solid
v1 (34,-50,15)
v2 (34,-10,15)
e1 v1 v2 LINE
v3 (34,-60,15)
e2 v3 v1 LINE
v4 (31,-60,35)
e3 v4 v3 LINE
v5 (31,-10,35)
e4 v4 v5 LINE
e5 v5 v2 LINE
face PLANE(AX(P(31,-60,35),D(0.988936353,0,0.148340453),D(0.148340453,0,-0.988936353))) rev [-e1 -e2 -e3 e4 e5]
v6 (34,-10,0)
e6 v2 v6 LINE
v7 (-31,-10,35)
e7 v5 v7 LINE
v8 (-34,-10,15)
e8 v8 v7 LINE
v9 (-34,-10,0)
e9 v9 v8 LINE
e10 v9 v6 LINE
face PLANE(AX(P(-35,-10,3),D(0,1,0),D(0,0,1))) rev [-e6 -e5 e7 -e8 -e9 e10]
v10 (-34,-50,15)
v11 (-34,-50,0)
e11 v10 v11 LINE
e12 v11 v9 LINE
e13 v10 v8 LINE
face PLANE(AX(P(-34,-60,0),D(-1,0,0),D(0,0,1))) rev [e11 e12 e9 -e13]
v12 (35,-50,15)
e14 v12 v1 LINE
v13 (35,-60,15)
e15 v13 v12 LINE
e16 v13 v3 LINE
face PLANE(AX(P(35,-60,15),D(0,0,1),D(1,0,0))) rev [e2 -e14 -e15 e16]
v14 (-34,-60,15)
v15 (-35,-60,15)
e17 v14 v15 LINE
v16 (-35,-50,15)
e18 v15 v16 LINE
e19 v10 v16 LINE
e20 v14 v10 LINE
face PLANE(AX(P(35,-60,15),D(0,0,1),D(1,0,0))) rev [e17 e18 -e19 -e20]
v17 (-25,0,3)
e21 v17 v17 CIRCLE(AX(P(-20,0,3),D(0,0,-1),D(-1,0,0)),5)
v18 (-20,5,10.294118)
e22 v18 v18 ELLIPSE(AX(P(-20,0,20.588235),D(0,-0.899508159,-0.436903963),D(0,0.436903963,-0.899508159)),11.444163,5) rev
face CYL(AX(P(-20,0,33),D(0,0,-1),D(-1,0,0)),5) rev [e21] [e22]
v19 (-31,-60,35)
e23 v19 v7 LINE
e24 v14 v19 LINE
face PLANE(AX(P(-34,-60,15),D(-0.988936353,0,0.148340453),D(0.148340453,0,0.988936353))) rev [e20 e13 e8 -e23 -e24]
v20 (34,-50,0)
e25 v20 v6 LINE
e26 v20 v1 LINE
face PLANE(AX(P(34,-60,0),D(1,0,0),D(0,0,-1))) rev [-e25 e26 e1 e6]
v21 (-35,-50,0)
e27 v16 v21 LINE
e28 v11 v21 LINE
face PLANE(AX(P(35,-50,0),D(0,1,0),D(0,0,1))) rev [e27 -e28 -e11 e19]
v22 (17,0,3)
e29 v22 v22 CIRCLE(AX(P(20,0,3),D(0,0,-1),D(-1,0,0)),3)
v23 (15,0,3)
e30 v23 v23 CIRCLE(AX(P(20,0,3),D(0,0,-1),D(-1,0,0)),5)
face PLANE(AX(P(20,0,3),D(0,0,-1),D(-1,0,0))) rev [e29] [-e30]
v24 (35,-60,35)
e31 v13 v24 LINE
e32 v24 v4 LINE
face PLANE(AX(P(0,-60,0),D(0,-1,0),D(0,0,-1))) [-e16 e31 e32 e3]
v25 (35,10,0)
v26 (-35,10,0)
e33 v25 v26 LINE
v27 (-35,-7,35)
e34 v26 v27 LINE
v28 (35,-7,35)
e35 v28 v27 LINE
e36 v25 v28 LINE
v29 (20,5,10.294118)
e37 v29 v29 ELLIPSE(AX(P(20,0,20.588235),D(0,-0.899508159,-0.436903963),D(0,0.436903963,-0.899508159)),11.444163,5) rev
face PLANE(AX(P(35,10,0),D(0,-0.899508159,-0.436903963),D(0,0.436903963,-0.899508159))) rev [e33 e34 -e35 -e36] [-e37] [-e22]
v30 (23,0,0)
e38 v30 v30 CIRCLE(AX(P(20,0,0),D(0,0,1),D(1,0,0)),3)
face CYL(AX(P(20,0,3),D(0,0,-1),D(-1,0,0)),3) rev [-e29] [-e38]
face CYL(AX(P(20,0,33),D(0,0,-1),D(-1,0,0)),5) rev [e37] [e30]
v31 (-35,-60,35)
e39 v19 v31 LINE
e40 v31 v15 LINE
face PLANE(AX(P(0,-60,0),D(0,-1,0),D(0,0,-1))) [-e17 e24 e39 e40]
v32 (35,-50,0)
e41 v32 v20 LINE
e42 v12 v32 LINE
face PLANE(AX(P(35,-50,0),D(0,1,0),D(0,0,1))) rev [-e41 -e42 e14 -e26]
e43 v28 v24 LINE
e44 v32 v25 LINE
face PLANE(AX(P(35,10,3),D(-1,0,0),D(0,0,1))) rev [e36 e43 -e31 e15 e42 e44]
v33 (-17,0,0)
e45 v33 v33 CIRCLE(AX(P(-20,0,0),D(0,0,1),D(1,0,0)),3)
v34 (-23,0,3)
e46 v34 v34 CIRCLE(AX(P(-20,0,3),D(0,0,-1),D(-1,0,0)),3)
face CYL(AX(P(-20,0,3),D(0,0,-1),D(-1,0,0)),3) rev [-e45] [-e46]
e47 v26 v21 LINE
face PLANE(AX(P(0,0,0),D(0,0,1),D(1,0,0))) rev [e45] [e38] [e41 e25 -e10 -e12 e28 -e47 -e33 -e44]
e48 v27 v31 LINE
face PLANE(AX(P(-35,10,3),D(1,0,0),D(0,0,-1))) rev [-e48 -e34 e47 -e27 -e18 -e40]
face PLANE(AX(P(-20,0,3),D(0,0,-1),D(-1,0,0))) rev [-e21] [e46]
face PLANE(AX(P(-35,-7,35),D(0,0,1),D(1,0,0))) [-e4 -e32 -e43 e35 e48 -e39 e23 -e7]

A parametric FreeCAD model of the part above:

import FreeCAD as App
import Part
import Sketcher

V = App.Vector
Q = App.Units.Quantity

doc = App.newDocument("Part")
body = doc.addObject("PartDesign::Body", "Body")

# Sketch on XY plane
sketch1 = body.newObject("Sketcher::SketchObject", "Sketch")
sketch1.AttachmentSupport = (doc.getObject("XY_Plane"), [""])
sketch1.MapMode = "FlatFace"
sketch1.addGeometry([
    Part.LineSegment(V(-35, 10, 0), V(-35, -10, 0)),  # 0
    Part.LineSegment(V(-35, -10, 0), V(35, -10, 0)),  # 1
    Part.LineSegment(V(35, -10, 0), V(35, 10, 0)),  # 2
    Part.LineSegment(V(35, 10, 0), V(-35, 10, 0)),  # 3
    Part.Circle(V(-20, 0, 0), V(0, 0, 1), 3),  # 4
    Part.Circle(V(20, 0, 0), V(0, 0, 1), 3),  # 5
], False)
sketch1.addConstraint([
    Sketcher.Constraint("Coincident", 0, 2, 1, 1),
    Sketcher.Constraint("Coincident", 1, 2, 2, 1),
    Sketcher.Constraint("Coincident", 2, 2, 3, 1),
    Sketcher.Constraint("Coincident", 3, 2, 0, 1),
    Sketcher.Constraint("Vertical", 0),
    Sketcher.Constraint("Horizontal", 1),
    Sketcher.Constraint("Vertical", 2),
    Sketcher.Constraint("Horizontal", 3),
    Sketcher.Constraint("Equal", 4, 5),
    Sketcher.Constraint("Symmetric", 4, 3, 5, 3, -1, 1),
    Sketcher.Constraint("Symmetric", 0, 2, 2, 2, -1, 1),
    Sketcher.Constraint("PointOnObject", 4, 3, -1),
    Sketcher.Constraint("Diameter", 4, Q("6 mm")),
    Sketcher.Constraint("DistanceX", 1, 1, 1, 2, Q("70 mm")),
    Sketcher.Constraint("DistanceY", 0, 2, 0, 1, Q("20 mm")),
    Sketcher.Constraint("DistanceX", 4, 3, -1, 1, Q("20 mm")),
])
pad1 = body.newObject("PartDesign::Pad", "Pad")
pad1.Profile = sketch1
pad1.Length = 3

# Sketch on XZ plane
sketch2 = body.newObject("Sketcher::SketchObject", "Sketch001")
sketch2.AttachmentSupport = (doc.getObject("XZ_Plane"), [""])
sketch2.MapMode = "FlatFace"
sketch2.AttachmentOffset = App.Placement(V(0, 0, 10), App.Rotation())
sketch2.addGeometry([
    Part.LineSegment(V(-35, 35, 0), V(-35, 0, 0)),
    Part.LineSegment(V(-35, 0, 0), V(35, 0, 0)),
    Part.LineSegment(V(35, 0, 0), V(35, 35, 0)),
    Part.LineSegment(V(35, 35, 0), V(-35, 35, 0)),
], False)
sketch2.addConstraint([
    Sketcher.Constraint("Coincident", 0, 2, 1, 1),
    Sketcher.Constraint("Coincident", 1, 2, 2, 1),
    Sketcher.Constraint("Coincident", 2, 2, 3, 1),
    Sketcher.Constraint("Coincident", 3, 2, 0, 1),
    Sketcher.Constraint("Vertical", 0),
    Sketcher.Constraint("Horizontal", 1),
    Sketcher.Constraint("Vertical", 2),
    Sketcher.Constraint("Horizontal", 3),
    Sketcher.Constraint("Symmetric", 0, 2, 1, 2, -1, 1),
    Sketcher.Constraint("DistanceX", 1, 1, 1, 2, Q("70 mm")),
    Sketcher.Constraint("DistanceY", 0, 2, 0, 1, Q("35 mm")),
])
pad2 = body.newObject("PartDesign::Pad", "Pad001")
pad2.Profile = sketch2
pad2.Length = 3
pad2.Reversed = True

# Sketch on XZ plane
sketch3 = body.newObject("Sketcher::SketchObject", "Sketch002")
sketch3.AttachmentSupport = (doc.getObject("XZ_Plane"), [""])
sketch3.MapMode = "FlatFace"
sketch3.AttachmentOffset = App.Placement(V(0, 0, 10), App.Rotation())
sketch3.addGeometry([
    Part.LineSegment(V(-34, 15, 0), V(-31, 35, 0)),  # 0
    Part.LineSegment(V(-31, 35, 0), V(-35, 35, 0)),  # 1
    Part.LineSegment(V(-35, 35, 0), V(-35, 0, 0)),  # 2
    Part.LineSegment(V(-35, 0, 0), V(-34, 0, 0)),  # 3
    Part.LineSegment(V(-34, 0, 0), V(-34, 15, 0)),  # 4
    Part.LineSegment(V(34, 0, 0), V(35, 0, 0)),  # 5
    Part.LineSegment(V(35, 0, 0), V(35, 35, 0)),  # 6
    Part.LineSegment(V(35, 35, 0), V(31, 35, 0)),  # 7
    Part.LineSegment(V(31, 35, 0), V(34, 15, 0)),  # 8
    Part.LineSegment(V(34, 15, 0), V(34, 0, 0)),  # 9
], False)
sketch3.addConstraint([
    Sketcher.Constraint("Coincident", 0, 2, 1, 1),
    Sketcher.Constraint("Coincident", 1, 2, 2, 1),
    Sketcher.Constraint("Coincident", 2, 2, 3, 1),
    Sketcher.Constraint("Coincident", 3, 2, 4, 1),
    Sketcher.Constraint("Coincident", 4, 2, 0, 1),
    Sketcher.Constraint("Coincident", 5, 2, 6, 1),
    Sketcher.Constraint("Coincident", 6, 2, 7, 1),
    Sketcher.Constraint("Coincident", 7, 2, 8, 1),
    Sketcher.Constraint("Coincident", 8, 2, 9, 1),
    Sketcher.Constraint("Coincident", 9, 2, 5, 1),
    Sketcher.Constraint("Horizontal", 1),
    Sketcher.Constraint("Vertical", 2),
    Sketcher.Constraint("Horizontal", 3),
    Sketcher.Constraint("Vertical", 4),
    Sketcher.Constraint("Horizontal", 5),
    Sketcher.Constraint("Vertical", 6),
    Sketcher.Constraint("Horizontal", 7),
    Sketcher.Constraint("Vertical", 9),
    Sketcher.Constraint("Symmetric", 2, 2, 5, 2, -1, 1),
    Sketcher.Constraint("Symmetric", 0, 2, 7, 2, -2),
    Sketcher.Constraint("Symmetric", 4, 2, 8, 2, -2),
    Sketcher.Constraint("PointOnObject", 2, 2, -1),
    Sketcher.Constraint("DistanceX", 1, 2, 1, 1, Q("4 mm")),
    Sketcher.Constraint("DistanceX", 3, 1, 3, 2, Q("1 mm")),
    Sketcher.Constraint("DistanceY", 2, 2, 2, 1, Q("35 mm")),
    Sketcher.Constraint("DistanceY", 4, 1, 4, 2, Q("15 mm")),
    Sketcher.Constraint("DistanceX", 0, 2, -1, 1, Q("31 mm")),
])
pad3 = body.newObject("PartDesign::Pad", "Pad002")
pad3.Profile = sketch3
pad3.Length = 50

# Sketch on YZ plane
sketch4 = body.newObject("Sketcher::SketchObject", "Sketch003")
sketch4.AttachmentSupport = (doc.getObject("YZ_Plane"), [""])
sketch4.MapMode = "FlatFace"
sketch4.AttachmentOffset = App.Placement(V(0, 0, -35), App.Rotation())
sketch4.addGeometry([
    Part.LineSegment(V(10, 3, 0), V(-7, 3, 0)),
    Part.LineSegment(V(-7, 3, 0), V(-7, 35, 0)),
    Part.LineSegment(V(-7, 35, 0), V(10, 3, 0)),
], False)
sketch4.addConstraint([
    Sketcher.Constraint("Coincident", 0, 2, 1, 1),
    Sketcher.Constraint("Coincident", 1, 2, 2, 1),
    Sketcher.Constraint("Coincident", 2, 2, 0, 1),
    Sketcher.Constraint("Horizontal", 0),
    Sketcher.Constraint("Vertical", 1),
    Sketcher.Constraint("DistanceX", 0, 2, 0, 1, Q("17 mm")),
    Sketcher.Constraint("DistanceY", 1, 1, 1, 2, Q("32 mm")),
    Sketcher.Constraint("DistanceX", 0, 2, -1, 1, Q("7 mm")),
    Sketcher.Constraint("DistanceY", -1, 1, 0, 2, Q("3 mm")),
])
pad4 = body.newObject("PartDesign::Pad", "Pad003")
pad4.Profile = sketch4
pad4.Length = 70

# Sketch on XY plane
sketch5 = body.newObject("Sketcher::SketchObject", "Sketch004")
sketch5.AttachmentSupport = (doc.getObject("XY_Plane"), [""])
sketch5.MapMode = "FlatFace"
sketch5.AttachmentOffset = App.Placement(V(0, 0, 3), App.Rotation())
sketch5.addGeometry([
    Part.Circle(V(20, 0, 0), V(0, 0, 1), 5),
    Part.Circle(V(-20, 0, 0), V(0, 0, 1), 5),
], False)
sketch5.addConstraint([
    Sketcher.Constraint("Equal", 0, 1),
    Sketcher.Constraint("Symmetric", 0, 3, 1, 3, -1, 1),
    Sketcher.Constraint("PointOnObject", 0, 3, -1),
    Sketcher.Constraint("Diameter", 0, Q("10 mm")),
    Sketcher.Constraint("DistanceX", -1, 1, 0, 3, Q("20 mm")),
])
pocket1 = body.newObject("PartDesign::Pocket", "Pocket")
pocket1.Profile = sketch5
pocket1.Length = 30
pocket1.Reversed = True

# Sketch on YZ plane
sketch6 = body.newObject("Sketcher::SketchObject", "Sketch005")
sketch6.AttachmentSupport = (doc.getObject("YZ_Plane"), [""])
sketch6.MapMode = "FlatFace"
sketch6.AttachmentOffset = App.Placement(V(0, 0, -35), App.Rotation())
sketch6.addGeometry([
    Part.LineSegment(V(10, 0, 0), V(-7, 35, 0)),
    Part.LineSegment(V(-7, 35, 0), V(10, 3, 0)),
    Part.LineSegment(V(10, 3, 0), V(10, 0, 0)),
], False)
sketch6.addConstraint([
    Sketcher.Constraint("Coincident", 0, 2, 1, 1),
    Sketcher.Constraint("Coincident", 1, 2, 2, 1),
    Sketcher.Constraint("Coincident", 2, 2, 0, 1),
    Sketcher.Constraint("Vertical", 2),
    Sketcher.Constraint("PointOnObject", 2, 2, -1),
    Sketcher.Constraint("DistanceY", 2, 2, 2, 1, Q("3 mm")),
    Sketcher.Constraint("DistanceX", 0, 2, -1, 1, Q("7 mm")),
    Sketcher.Constraint("DistanceY", -1, 1, 0, 2, Q("35 mm")),
    Sketcher.Constraint("DistanceX", -1, 1, 1, 2, Q("10 mm")),
])
pocket2 = body.newObject("PartDesign::Pocket", "Pocket001")
pocket2.Profile = sketch6
pocket2.Length = 70
pocket2.Reversed = True

# Sketch on YZ plane
sketch7 = body.newObject("Sketcher::SketchObject", "Sketch006")
sketch7.AttachmentSupport = (doc.getObject("YZ_Plane"), [""])
sketch7.MapMode = "FlatFace"
sketch7.AttachmentOffset = App.Placement(V(0, 0, -35), App.Rotation())
sketch7.addGeometry([
    Part.LineSegment(V(-50, 0, 0), V(-60, 0, 0)),
    Part.LineSegment(V(-60, 0, 0), V(-60, 15, 0)),
    Part.LineSegment(V(-60, 15, 0), V(-50, 15, 0)),
    Part.LineSegment(V(-50, 15, 0), V(-50, 0, 0)),
], False)
sketch7.addConstraint([
    Sketcher.Constraint("Coincident", 0, 2, 1, 1),
    Sketcher.Constraint("Coincident", 1, 2, 2, 1),
    Sketcher.Constraint("Coincident", 2, 2, 3, 1),
    Sketcher.Constraint("Coincident", 3, 2, 0, 1),
    Sketcher.Constraint("Horizontal", 0),
    Sketcher.Constraint("Vertical", 1),
    Sketcher.Constraint("Horizontal", 2),
    Sketcher.Constraint("Vertical", 3),
    Sketcher.Constraint("PointOnObject", 0, 2, -1),
    Sketcher.Constraint("DistanceX", 0, 2, 0, 1, Q("10 mm")),
    Sketcher.Constraint("DistanceY", 1, 1, 1, 2, Q("15 mm")),
    Sketcher.Constraint("DistanceX", 0, 2, -1, 1, Q("60 mm")),
])
pocket3 = body.newObject("PartDesign::Pocket", "Pocket002")
pocket3.Profile = sketch7
pocket3.Type = "ThroughAll"
pocket3.Reversed = True

doc.recompute()
